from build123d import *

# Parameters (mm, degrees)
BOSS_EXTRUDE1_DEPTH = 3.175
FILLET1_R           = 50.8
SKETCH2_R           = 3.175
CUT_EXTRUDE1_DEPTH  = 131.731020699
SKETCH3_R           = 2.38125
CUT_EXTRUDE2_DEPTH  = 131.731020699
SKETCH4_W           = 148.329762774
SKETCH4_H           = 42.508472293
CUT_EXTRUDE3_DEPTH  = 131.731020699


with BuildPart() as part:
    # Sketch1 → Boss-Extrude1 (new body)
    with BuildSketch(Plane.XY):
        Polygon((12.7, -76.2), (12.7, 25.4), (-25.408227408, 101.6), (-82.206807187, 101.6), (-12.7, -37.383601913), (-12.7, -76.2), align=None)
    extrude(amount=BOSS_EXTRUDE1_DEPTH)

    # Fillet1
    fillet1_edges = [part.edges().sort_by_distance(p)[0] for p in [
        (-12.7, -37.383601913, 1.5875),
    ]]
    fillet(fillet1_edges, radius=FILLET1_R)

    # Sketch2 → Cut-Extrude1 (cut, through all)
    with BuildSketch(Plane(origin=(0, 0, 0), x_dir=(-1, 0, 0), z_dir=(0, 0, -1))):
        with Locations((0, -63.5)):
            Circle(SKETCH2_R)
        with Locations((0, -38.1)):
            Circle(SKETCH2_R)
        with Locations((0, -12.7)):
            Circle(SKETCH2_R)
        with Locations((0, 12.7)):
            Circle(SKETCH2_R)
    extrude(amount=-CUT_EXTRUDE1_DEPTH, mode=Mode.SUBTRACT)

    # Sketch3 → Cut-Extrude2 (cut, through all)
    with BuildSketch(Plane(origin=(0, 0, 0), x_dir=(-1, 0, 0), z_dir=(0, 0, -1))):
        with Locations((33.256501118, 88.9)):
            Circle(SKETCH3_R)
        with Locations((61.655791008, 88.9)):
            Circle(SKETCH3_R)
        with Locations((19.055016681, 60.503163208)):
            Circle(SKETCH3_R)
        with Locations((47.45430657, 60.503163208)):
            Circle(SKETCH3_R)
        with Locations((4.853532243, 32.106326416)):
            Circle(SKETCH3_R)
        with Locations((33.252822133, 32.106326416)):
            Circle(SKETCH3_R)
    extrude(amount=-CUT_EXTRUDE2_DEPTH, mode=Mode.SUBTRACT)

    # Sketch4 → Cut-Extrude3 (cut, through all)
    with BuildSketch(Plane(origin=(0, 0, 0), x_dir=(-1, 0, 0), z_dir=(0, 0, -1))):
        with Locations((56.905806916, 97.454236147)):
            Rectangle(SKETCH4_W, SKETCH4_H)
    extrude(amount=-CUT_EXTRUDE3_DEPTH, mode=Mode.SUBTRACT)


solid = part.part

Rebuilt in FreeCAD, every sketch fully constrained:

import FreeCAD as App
import Part
import Sketcher

V = App.Vector
Q = App.Units.Quantity


def edges_at(feature, points):
    """Names of the edges that pass closest to the given points."""
    edges = feature.Shape.Edges
    near = lambda p: min(range(len(edges)), key=lambda i: edges[i].distToShape(Part.Vertex(*p))[0])
    return sorted({f"Edge{near(p) + 1}" for p in points})


def add_polygon(sketch, points):
    """Adds a closed chain of lines whose ends are joined by coincident constraints."""
    first, n = sketch.GeometryCount, len(points)
    for a, b in zip(points, points[1:] + points[:1]):
        sketch.addGeometry(Part.LineSegment(App.Vector(*a, 0), App.Vector(*b, 0)), False)
    for i in range(n):
        sketch.addConstraint(Sketcher.Constraint("Coincident", first + i, 2, first + (i + 1) % n, 1))

doc = App.newDocument("Part")
body = doc.addObject("PartDesign::Body", "Body")

sketch1 = body.newObject("Sketcher::SketchObject", "Sketch")
sketch1.AttachmentSupport = (doc.getObject("XY_Plane"), [""])
sketch1.MapMode = "FlatFace"
add_polygon(sketch1, [(13, -76), (13, 25), (-25, 102), (-82, 102), (-13, -37), (-13, -76)])
sketch1.addConstraint([
    Sketcher.Constraint("Vertical", 0),
    Sketcher.Constraint("Horizontal", 2),
    Sketcher.Constraint("Vertical", 4),
    Sketcher.Constraint("Horizontal", 5),
    Sketcher.Constraint("Parallel", 1, 3),
    Sketcher.Constraint("DistanceX", 5, 1, 5, 2, Q("1 in")),
    Sketcher.Constraint("DistanceY", 0, 1, 0, 2, Q("4 in")),
    Sketcher.Constraint("DistanceY", -1, 1, 0, 2, Q("1 in")),
    Sketcher.Constraint("DistanceY", -1, 1, 1, 2, Q("4 in")),
    Sketcher.Constraint("DistanceX", -1, 1, 0, 2, Q("0.5 in")),
    Sketcher.Constraint("Angle", 1, Q("116.57 deg")),
    Sketcher.Constraint("DistanceY", 4, 2, 4, 1, 38.816398),
])
pad1 = body.newObject("PartDesign::Pad", "Pad")
pad1.Profile = sketch1
pad1.Length = Q("0.125 in")
doc.recompute()

fillet = body.newObject("PartDesign::Fillet", "Fillet")
fillet.Base = (pad1, edges_at(pad1, [(-12.7, -37.384, 1.587)]))
fillet.Radius = Q("2 in")

sketch2 = body.newObject("Sketcher::SketchObject", "Sketch001")
sketch2.AttachmentSupport = (doc.getObject("XY_Plane"), [""])
sketch2.MapMode = "FlatFace"
sketch2.addGeometry([
    Part.Circle(V(0, -63.5, 0), V(0, 0, 1), 3.2),
    Part.Circle(V(0, -38.1, 0), V(0, 0, 1), 3.2),
    Part.Circle(V(0, -12.7, 0), V(0, 0, 1), 3.2),
    Part.Circle(V(0, 12.7, 0), V(0, 0, 1), 3.2),
], False)
sketch2.addConstraint([
    Sketcher.Constraint("Equal", 0, 1),
    Sketcher.Constraint("Equal", 1, 2),
    Sketcher.Constraint("Equal", 2, 3),
    Sketcher.Constraint("Symmetric", 2, 3, 3, 3, -1, 1),
    Sketcher.Constraint("PointOnObject", 0, 3, -2),
    Sketcher.Constraint("PointOnObject", 1, 3, -2),
    Sketcher.Constraint("PointOnObject", 2, 3, -2),
    Sketcher.Constraint("Diameter", 0, Q("0.25 in")),
    Sketcher.Constraint("DistanceY", 0, 3, 1, 3, Q("1 in")),
    Sketcher.Constraint("DistanceY", 1, 3, 2, 3, Q("1 in")),
    Sketcher.Constraint("DistanceY", 2, 3, 3, 3, Q("1 in")),
])
pocket1 = body.newObject("PartDesign::Pocket", "Pocket")
pocket1.Profile = sketch2
pocket1.Type = "ThroughAll"
pocket1.Reversed = True

sketch3 = body.newObject("Sketcher::SketchObject", "Sketch002")
sketch3.AttachmentSupport = (doc.getObject("XY_Plane"), [""])
sketch3.MapMode = "FlatFace"
sketch3.addGeometry([
    Part.Circle(V(-33.3, 88.9, 0), V(0, 0, 1), 2.4),
    Part.Circle(V(-61.7, 88.9, 0), V(0, 0, 1), 2.4),
    Part.Circle(V(-19.1, 60.5, 0), V(0, 0, 1), 2.4),
    Part.Circle(V(-47.5, 60.5, 0), V(0, 0, 1), 2.4),
    Part.Circle(V(-4.9, 32.1, 0), V(0, 0, 1), 2.4),
    Part.Circle(V(-33.3, 32.1, 0), V(0, 0, 1), 2.4),
], False)
sketch3.addConstraint([
    Sketcher.Constraint("Equal", 0, 1),
    Sketcher.Constraint("Equal", 1, 2),
    Sketcher.Constraint("Equal", 2, 3),
    Sketcher.Constraint("Equal", 3, 4),
    Sketcher.Constraint("Equal", 4, 5),
    Sketcher.Constraint("Horizontal", 0, 3, 1, 3),
    Sketcher.Constraint("Horizontal", 2, 3, 3, 3),
    Sketcher.Constraint("Horizontal", 4, 3, 5, 3),
    Sketcher.Constraint("Diameter", 0, Q("0.1875 in")),
    Sketcher.Constraint("DistanceY", -1, 1, 0, 3, Q("3.5 in")),
    Sketcher.Constraint("DistanceX", 0, 3, -1, 1, 33.256501),
    Sketcher.Constraint("DistanceX", 1, 3, -1, 1, 61.655791),
    Sketcher.Constraint("DistanceX", 3, 3, 2, 3, 28.39929),
    Sketcher.Constraint("DistanceX", 0, 3, 4, 3, 28.402969),
    Sketcher.Constraint("DistanceX", 5, 3, 4, 3, 28.39929),
    Sketcher.Constraint("DistanceX", 2, 3, -1, 1, 19.055017),
    Sketcher.Constraint("DistanceY", -1, 1, 2, 3, 60.503163),
    Sketcher.Constraint("DistanceY", -1, 1, 4, 3, 32.106326),
])
pocket2 = body.newObject("PartDesign::Pocket", "Pocket001")
pocket2.Profile = sketch3
pocket2.Type = "ThroughAll"
pocket2.Reversed = True

sketch4 = body.newObject("Sketcher::SketchObject", "Sketch003")
sketch4.AttachmentSupport = (doc.getObject("XY_Plane"), [""])
sketch4.MapMode = "FlatFace"
add_polygon(sketch4, [(17, 119), (17, 76), (-131, 76), (-131, 119)])
sketch4.addConstraint([
    Sketcher.Constraint("Vertical", 0),
    Sketcher.Constraint("Horizontal", 1),
    Sketcher.Constraint("Vertical", 2),
    Sketcher.Constraint("Horizontal", 3),
    Sketcher.Constraint("DistanceY", -1, 1, 0, 2, Q("3 in")),
    Sketcher.Constraint("DistanceX", 1, 2, 1, 1, 148.329763),
    Sketcher.Constraint("DistanceY", 0, 2, 0, 1, 42.508472),
    Sketcher.Constraint("DistanceX", 1, 2, -1, 1, 131.070688),
])
pocket3 = body.newObject("PartDesign::Pocket", "Pocket002")
pocket3.Profile = sketch4
pocket3.Type = "ThroughAll"
pocket3.Reversed = True

doc.recompute()
